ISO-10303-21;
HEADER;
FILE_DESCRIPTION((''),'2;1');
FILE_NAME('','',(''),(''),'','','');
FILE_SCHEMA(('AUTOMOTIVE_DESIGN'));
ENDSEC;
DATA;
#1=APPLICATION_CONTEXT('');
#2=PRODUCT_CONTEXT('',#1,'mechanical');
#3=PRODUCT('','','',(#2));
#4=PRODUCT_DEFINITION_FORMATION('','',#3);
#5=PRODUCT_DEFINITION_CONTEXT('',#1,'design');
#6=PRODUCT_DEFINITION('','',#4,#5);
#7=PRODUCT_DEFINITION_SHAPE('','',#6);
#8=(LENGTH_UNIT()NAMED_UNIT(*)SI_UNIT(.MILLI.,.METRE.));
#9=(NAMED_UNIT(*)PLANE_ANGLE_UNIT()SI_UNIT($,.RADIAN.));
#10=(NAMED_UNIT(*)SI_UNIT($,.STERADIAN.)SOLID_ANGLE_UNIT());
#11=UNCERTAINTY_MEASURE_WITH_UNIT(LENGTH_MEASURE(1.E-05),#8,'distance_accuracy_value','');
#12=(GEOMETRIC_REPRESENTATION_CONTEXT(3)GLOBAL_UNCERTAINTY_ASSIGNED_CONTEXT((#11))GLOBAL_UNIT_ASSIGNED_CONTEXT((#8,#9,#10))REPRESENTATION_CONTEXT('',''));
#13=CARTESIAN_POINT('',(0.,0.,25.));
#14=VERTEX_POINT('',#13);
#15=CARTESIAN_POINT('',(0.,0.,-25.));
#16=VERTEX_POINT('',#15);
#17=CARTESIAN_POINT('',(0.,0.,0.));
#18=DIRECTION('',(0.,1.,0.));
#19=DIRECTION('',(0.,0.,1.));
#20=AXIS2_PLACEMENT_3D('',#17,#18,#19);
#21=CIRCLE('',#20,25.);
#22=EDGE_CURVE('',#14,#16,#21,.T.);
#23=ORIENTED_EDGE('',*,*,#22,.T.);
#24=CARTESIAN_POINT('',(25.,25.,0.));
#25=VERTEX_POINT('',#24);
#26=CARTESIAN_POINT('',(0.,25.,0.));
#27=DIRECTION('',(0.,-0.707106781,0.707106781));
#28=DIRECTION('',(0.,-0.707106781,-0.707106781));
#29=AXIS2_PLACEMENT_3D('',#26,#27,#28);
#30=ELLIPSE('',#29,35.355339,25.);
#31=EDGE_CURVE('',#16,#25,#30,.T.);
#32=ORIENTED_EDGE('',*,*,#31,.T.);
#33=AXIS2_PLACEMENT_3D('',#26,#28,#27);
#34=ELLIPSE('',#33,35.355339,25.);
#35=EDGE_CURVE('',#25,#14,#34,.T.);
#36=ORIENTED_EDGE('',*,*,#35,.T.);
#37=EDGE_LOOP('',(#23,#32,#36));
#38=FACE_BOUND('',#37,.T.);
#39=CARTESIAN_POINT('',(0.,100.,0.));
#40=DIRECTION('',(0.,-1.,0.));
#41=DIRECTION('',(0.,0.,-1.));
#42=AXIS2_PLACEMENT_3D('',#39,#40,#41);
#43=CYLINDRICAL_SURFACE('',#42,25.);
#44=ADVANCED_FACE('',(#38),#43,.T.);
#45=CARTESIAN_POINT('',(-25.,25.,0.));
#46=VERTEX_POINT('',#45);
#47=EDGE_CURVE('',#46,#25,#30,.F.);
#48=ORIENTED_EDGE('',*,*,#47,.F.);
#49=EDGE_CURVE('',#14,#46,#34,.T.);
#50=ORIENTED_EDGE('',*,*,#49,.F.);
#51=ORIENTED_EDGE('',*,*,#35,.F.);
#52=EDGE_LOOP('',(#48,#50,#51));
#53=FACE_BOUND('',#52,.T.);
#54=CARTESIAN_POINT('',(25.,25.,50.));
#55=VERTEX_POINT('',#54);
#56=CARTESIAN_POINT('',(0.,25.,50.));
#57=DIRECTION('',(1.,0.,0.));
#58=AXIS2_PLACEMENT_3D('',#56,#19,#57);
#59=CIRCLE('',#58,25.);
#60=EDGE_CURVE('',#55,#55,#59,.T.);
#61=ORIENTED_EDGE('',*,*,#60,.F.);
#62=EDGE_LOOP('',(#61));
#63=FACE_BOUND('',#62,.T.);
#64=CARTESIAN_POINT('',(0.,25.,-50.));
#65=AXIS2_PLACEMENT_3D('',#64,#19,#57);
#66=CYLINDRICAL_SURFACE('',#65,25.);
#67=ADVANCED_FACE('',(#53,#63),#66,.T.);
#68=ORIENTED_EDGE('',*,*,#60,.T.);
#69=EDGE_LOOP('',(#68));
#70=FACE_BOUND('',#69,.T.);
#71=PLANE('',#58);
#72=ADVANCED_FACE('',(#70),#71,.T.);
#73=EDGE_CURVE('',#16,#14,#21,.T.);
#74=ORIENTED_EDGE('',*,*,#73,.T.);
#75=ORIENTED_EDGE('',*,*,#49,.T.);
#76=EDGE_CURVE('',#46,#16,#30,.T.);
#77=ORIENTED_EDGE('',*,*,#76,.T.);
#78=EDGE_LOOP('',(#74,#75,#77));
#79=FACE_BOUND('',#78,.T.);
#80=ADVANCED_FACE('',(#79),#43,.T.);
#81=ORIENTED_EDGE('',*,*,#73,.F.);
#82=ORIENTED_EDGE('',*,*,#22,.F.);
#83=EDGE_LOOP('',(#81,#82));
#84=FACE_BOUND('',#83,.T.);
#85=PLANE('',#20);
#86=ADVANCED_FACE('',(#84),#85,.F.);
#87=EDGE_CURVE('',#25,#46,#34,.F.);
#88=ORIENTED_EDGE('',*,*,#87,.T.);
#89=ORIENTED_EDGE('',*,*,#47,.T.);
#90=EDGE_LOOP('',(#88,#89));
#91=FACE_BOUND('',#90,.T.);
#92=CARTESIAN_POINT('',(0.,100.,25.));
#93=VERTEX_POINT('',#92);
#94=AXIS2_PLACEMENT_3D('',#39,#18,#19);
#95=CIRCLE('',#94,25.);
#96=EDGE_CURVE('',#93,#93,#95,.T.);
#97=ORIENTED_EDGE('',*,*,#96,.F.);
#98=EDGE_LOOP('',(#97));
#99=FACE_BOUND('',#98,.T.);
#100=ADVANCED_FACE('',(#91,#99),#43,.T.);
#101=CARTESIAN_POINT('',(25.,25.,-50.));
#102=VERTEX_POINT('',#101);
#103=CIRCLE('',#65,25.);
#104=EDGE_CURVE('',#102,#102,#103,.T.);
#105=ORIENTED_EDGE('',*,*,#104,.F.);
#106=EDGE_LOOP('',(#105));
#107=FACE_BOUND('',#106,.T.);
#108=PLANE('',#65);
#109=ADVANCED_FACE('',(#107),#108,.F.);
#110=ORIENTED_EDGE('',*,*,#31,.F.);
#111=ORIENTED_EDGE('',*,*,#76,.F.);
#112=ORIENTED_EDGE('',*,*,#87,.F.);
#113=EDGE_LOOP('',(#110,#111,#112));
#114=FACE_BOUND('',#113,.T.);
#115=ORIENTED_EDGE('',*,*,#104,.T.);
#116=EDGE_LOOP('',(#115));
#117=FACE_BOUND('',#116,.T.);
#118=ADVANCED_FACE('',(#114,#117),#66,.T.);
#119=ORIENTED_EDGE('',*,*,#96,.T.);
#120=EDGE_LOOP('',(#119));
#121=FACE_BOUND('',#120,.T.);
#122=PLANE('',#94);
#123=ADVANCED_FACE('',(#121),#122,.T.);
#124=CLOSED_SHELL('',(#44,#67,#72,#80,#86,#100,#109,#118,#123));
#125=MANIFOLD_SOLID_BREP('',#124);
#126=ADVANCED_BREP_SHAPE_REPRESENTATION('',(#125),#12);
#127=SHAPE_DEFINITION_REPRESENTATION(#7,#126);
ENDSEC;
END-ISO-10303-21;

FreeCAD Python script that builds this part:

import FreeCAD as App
import Part
import Sketcher
from FreeCAD import Vector
Q = App.Units.Quantity

doc = App.newDocument("Part")
body = doc.addObject("PartDesign::Body", "Body")

sketch1 = doc.addObject("Sketcher::SketchObject", "Sketch")
body.addObject(sketch1)
sketch1.AttachmentSupport = (doc.XZ_Plane, [""])
sketch1.MapMode = "FlatFace"
sketch1.addGeometry(Part.Circle(Vector(0, 0, 0), Vector(0, 0, 1), 25), False)
sketch1.addConstraint([
    Sketcher.Constraint("Coincident", 0, 3, -1, 1),
    Sketcher.Constraint("Diameter", 0, Q("50 mm")),
])
pad1 = doc.addObject("PartDesign::Pad", "Pad")
body.addObject(pad1)
pad1.Profile = sketch1
pad1.Length = 100
pad1.Reversed = True

sketch2 = doc.addObject("Sketcher::SketchObject", "Sketch001")
body.addObject(sketch2)
sketch2.AttachmentSupport = (doc.XY_Plane, [""])
sketch2.MapMode = "FlatFace"
sketch2.addGeometry(Part.Circle(Vector(0, 25, 0), Vector(0, 0, 1), 25), False)
sketch2.addConstraint([
    Sketcher.Constraint("PointOnObject", 0, 3, -2),
    Sketcher.Constraint("Diameter", 0, Q("50 mm")),
    Sketcher.Constraint("DistanceY", -1, 1, 0, 3, Q("25 mm")),
])
pad2 = doc.addObject("PartDesign::Pad", "Pad001")
body.addObject(pad2)
pad2.Profile = sketch2
pad2.Type = "TwoLengths"
pad2.Length = 50
pad2.Length2 = 50

doc.recompute()
